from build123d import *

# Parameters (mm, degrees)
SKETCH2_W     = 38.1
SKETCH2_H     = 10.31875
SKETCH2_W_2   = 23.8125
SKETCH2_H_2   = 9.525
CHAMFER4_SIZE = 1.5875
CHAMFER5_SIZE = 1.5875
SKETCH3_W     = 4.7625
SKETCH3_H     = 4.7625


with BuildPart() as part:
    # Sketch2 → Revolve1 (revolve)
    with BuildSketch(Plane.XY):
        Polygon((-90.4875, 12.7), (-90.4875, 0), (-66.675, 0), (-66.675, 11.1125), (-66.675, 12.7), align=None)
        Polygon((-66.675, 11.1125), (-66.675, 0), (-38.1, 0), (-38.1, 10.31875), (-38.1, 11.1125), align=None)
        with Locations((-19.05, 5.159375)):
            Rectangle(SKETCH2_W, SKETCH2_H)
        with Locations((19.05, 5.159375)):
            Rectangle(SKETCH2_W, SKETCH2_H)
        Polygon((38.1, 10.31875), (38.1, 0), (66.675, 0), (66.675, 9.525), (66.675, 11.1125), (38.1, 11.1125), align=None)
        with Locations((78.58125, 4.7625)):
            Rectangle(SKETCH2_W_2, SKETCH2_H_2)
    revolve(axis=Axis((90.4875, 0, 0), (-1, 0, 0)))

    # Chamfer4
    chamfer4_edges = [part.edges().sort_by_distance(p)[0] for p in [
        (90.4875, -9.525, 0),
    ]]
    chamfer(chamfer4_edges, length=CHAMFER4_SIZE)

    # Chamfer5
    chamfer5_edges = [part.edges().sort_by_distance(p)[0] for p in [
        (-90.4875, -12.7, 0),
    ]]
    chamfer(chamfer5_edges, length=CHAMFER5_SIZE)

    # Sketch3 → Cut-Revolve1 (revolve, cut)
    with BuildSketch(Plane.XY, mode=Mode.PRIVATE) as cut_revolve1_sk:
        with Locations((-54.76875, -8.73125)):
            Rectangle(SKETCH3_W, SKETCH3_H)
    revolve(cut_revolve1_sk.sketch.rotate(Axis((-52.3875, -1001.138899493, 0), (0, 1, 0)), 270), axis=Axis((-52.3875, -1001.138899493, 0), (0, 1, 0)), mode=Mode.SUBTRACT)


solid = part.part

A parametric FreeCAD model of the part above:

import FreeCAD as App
import Part
import Sketcher
Q = App.Units.Quantity


def edges_at(feature, points):
    """Names of the edges that pass closest to the given points."""
    edges = feature.Shape.Edges
    near = lambda p: min(range(len(edges)), key=lambda i: edges[i].distToShape(Part.Vertex(*p))[0])
    return sorted({f"Edge{near(p) + 1}" for p in points})

doc = App.newDocument("Part")
params = doc.addObject("Spreadsheet::Sheet", "Params")
for row, (alias, value) in enumerate([
    ("sketch1_width", "3 in"),
    ("sketch1_height", "0.5 in"),
    ("sketch1_width2", "7.125 in"),
    ("sketch1_width3", "0.9375 in"),
    ("sketch1_height2", "0.375 in"),
    ("revolution_angle", "360 deg"),
    ("chamfer_size", "0.0625 in"),
    ("chamfer2_size", "0.0625 in"),
    ("sketch2_width", "0.1875 in"),
    ("groove_angle", "360 deg"),
], start=1):
    params.set(f"A{row}", alias)
    params.set(f"B{row}", "=" + value)
    params.setAlias(f"B{row}", alias)

body = doc.addObject("PartDesign::Body", "Body")

# Sketch on XY plane
sketch1 = body.newObject("Sketcher::SketchObject", "Sketch")
sketch1.AttachmentSupport = (doc.getObject("XY_Plane"), [""])
sketch1.MapMode = "FlatFace"
sketch1.addGeometry(Part.LineSegment(App.Vector(-90.5, 12.7, 0), App.Vector(-90.5, 0, 0)), False)
sketch1.addGeometry(Part.LineSegment(App.Vector(-90.5, 0, 0), App.Vector(90.5, 0, 0)), False)
sketch1.addGeometry(Part.LineSegment(App.Vector(90.5, 0, 0), App.Vector(90.5, 9.5, 0)), False)
sketch1.addGeometry(Part.LineSegment(App.Vector(90.5, 9.5, 0), App.Vector(66.7, 9.5, 0)), False)
sketch1.addGeometry(Part.LineSegment(App.Vector(66.7, 9.5, 0), App.Vector(66.7, 11.1, 0)), False)
sketch1.addGeometry(Part.LineSegment(App.Vector(66.7, 11.1, 0), App.Vector(38.1, 11.1, 0)), False)
sketch1.addGeometry(Part.LineSegment(App.Vector(38.1, 11.1, 0), App.Vector(38.1, 10.3, 0)), False)
sketch1.addGeometry(Part.LineSegment(App.Vector(38.1, 10.3, 0), App.Vector(-38.1, 10.3, 0)), False)
sketch1.addGeometry(Part.LineSegment(App.Vector(-38.1, 10.3, 0), App.Vector(-38.1, 11.1, 0)), False)
sketch1.addGeometry(Part.LineSegment(App.Vector(-38.1, 11.1, 0), App.Vector(-66.7, 11.1, 0)), False)
sketch1.addGeometry(Part.LineSegment(App.Vector(-66.7, 11.1, 0), App.Vector(-66.7, 12.7, 0)), False)
sketch1.addGeometry(Part.LineSegment(App.Vector(-66.7, 12.7, 0), App.Vector(-90.5, 12.7, 0)), False)
sketch1.addConstraint(Sketcher.Constraint("Coincident", 0, 2, 1, 1))
sketch1.addConstraint(Sketcher.Constraint("Coincident", 1, 2, 2, 1))
sketch1.addConstraint(Sketcher.Constraint("Coincident", 2, 2, 3, 1))
sketch1.addConstraint(Sketcher.Constraint("Coincident", 3, 2, 4, 1))
sketch1.addConstraint(Sketcher.Constraint("Coincident", 4, 2, 5, 1))
sketch1.addConstraint(Sketcher.Constraint("Coincident", 5, 2, 6, 1))
sketch1.addConstraint(Sketcher.Constraint("Coincident", 6, 2, 7, 1))
sketch1.addConstraint(Sketcher.Constraint("Coincident", 7, 2, 8, 1))
sketch1.addConstraint(Sketcher.Constraint("Coincident", 8, 2, 9, 1))
sketch1.addConstraint(Sketcher.Constraint("Coincident", 9, 2, 10, 1))
sketch1.addConstraint(Sketcher.Constraint("Coincident", 10, 2, 11, 1))
sketch1.addConstraint(Sketcher.Constraint("Coincident", 11, 2, 0, 1))
sketch1.addConstraint(Sketcher.Constraint("Vertical", 0))
sketch1.addConstraint(Sketcher.Constraint("Horizontal", 1))
sketch1.addConstraint(Sketcher.Constraint("Vertical", 2))
sketch1.addConstraint(Sketcher.Constraint("Horizontal", 3))
sketch1.addConstraint(Sketcher.Constraint("Vertical", 4))
sketch1.addConstraint(Sketcher.Constraint("Horizontal", 5))
sketch1.addConstraint(Sketcher.Constraint("Vertical", 6))
sketch1.addConstraint(Sketcher.Constraint("Horizontal", 7))
sketch1.addConstraint(Sketcher.Constraint("Vertical", 8))
sketch1.addConstraint(Sketcher.Constraint("Horizontal", 9))
sketch1.addConstraint(Sketcher.Constraint("Vertical", 10))
sketch1.addConstraint(Sketcher.Constraint("Horizontal", 11))
sketch1.addConstraint(Sketcher.Constraint("Symmetric", 0, 2, 1, 2, -1, 1))
sketch1.addConstraint(Sketcher.Constraint("Symmetric", 5, 2, 8, 2, -2))
sketch1.addConstraint(Sketcher.Constraint("Equal", 5, 9))
sketch1.addConstraint(Sketcher.Constraint("Equal", 4, 10))
sketch1.addConstraint(Sketcher.Constraint("DistanceX", 7, 2, 7, 1, Q("3 in")))
sketch1.addConstraint(Sketcher.Constraint("DistanceY", 0, 2, 0, 1, Q("0.5 in")))
sketch1.addConstraint(Sketcher.Constraint("DistanceX", 1, 1, 1, 2, Q("7.125 in")))
sketch1.addConstraint(Sketcher.Constraint("DistanceX", 3, 2, 3, 1, Q("0.9375 in")))
sketch1.addConstraint(Sketcher.Constraint("DistanceY", 2, 1, 2, 2, Q("0.375 in")))
sketch1.addConstraint(Sketcher.Constraint("DistanceY", 6, 2, 6, 1, Q("0.03125 in")))
sketch1.setExpression("Constraints[28]", "Params.sketch1_width")
sketch1.setExpression("Constraints[29]", "Params.sketch1_height")
sketch1.setExpression("Constraints[30]", "Params.sketch1_width2")
sketch1.setExpression("Constraints[31]", "Params.sketch1_width3")
sketch1.setExpression("Constraints[32]", "Params.sketch1_height2")
revolution = body.newObject("PartDesign::Revolution", "Revolution")
revolution.Profile = sketch1
revolution.ReferenceAxis = (sketch1, ["H_Axis"])
revolution.setExpression("Angle", "Params.revolution_angle")
doc.recompute()

chamfer = body.newObject("PartDesign::Chamfer", "Chamfer")
chamfer.Base = (revolution, edges_at(revolution, [(90.487, -9.525, 0)]))
chamfer.setExpression("Size", "Params.chamfer_size")
doc.recompute()

chamfer2 = body.newObject("PartDesign::Chamfer", "Chamfer001")
chamfer2.Base = (chamfer, edges_at(chamfer, [(-90.487, -12.7, 0)]))
chamfer2.setExpression("Size", "Params.chamfer2_size")

# Sketch on XY plane
sketch2 = body.newObject("Sketcher::SketchObject", "Sketch001")
sketch2.AttachmentSupport = (doc.getObject("XY_Plane"), [""])
sketch2.MapMode = "FlatFace"
sketch2.addGeometry(Part.LineSegment(App.Vector(-57.1, -6.3, 0), App.Vector(-57.1, -11.1, 0)), False)
sketch2.addGeometry(Part.LineSegment(App.Vector(-57.1, -11.1, 0), App.Vector(-52.4, -11.1, 0)), False)
sketch2.addGeometry(Part.LineSegment(App.Vector(-52.4, -11.1, 0), App.Vector(-52.4, -6.3, 0)), False)
sketch2.addGeometry(Part.LineSegment(App.Vector(-52.4, -6.3, 0), App.Vector(-57.1, -6.3, 0)), False)
sketch2.addGeometry(Part.LineSegment(App.Vector(-52.4, -11.1, 0), App.Vector(-52.4, -6.3, 0)), True)  # axis
sketch2.addConstraint(Sketcher.Constraint("Coincident", 0, 2, 1, 1))
sketch2.addConstraint(Sketcher.Constraint("Coincident", 1, 2, 2, 1))
sketch2.addConstraint(Sketcher.Constraint("Coincident", 2, 2, 3, 1))
sketch2.addConstraint(Sketcher.Constraint("Coincident", 3, 2, 0, 1))
sketch2.addConstraint(Sketcher.Constraint("Vertical", 0))
sketch2.addConstraint(Sketcher.Constraint("Horizontal", 1))
sketch2.addConstraint(Sketcher.Constraint("Vertical", 2))
sketch2.addConstraint(Sketcher.Constraint("Horizontal", 3))
sketch2.addConstraint(Sketcher.Constraint("Vertical", 4))
sketch2.addConstraint(Sketcher.Constraint("Coincident", 4, 1, 1, 2))
sketch2.addConstraint(Sketcher.Constraint("Horizontal", 3, 2, 4, 2))
sketch2.addConstraint(Sketcher.Constraint("Equal", 3, 0))
sketch2.addConstraint(Sketcher.Constraint("DistanceX", 1, 1, 1, 2, Q("0.1875 in")))
sketch2.addConstraint(Sketcher.Constraint("DistanceX", 0, 2, -1, 1, Q("2.25 in")))
sketch2.addConstraint(Sketcher.Constraint("DistanceY", 2, 2, -1, 1, Q("0.25 in")))
sketch2.setExpression("Constraints[12]", "Params.sketch2_width")
groove = body.newObject("PartDesign::Groove", "Groove")
groove.Profile = sketch2
groove.ReferenceAxis = (sketch2, ["Axis0"])
groove.setExpression("Angle", "Params.groove_angle")

doc.recompute()
